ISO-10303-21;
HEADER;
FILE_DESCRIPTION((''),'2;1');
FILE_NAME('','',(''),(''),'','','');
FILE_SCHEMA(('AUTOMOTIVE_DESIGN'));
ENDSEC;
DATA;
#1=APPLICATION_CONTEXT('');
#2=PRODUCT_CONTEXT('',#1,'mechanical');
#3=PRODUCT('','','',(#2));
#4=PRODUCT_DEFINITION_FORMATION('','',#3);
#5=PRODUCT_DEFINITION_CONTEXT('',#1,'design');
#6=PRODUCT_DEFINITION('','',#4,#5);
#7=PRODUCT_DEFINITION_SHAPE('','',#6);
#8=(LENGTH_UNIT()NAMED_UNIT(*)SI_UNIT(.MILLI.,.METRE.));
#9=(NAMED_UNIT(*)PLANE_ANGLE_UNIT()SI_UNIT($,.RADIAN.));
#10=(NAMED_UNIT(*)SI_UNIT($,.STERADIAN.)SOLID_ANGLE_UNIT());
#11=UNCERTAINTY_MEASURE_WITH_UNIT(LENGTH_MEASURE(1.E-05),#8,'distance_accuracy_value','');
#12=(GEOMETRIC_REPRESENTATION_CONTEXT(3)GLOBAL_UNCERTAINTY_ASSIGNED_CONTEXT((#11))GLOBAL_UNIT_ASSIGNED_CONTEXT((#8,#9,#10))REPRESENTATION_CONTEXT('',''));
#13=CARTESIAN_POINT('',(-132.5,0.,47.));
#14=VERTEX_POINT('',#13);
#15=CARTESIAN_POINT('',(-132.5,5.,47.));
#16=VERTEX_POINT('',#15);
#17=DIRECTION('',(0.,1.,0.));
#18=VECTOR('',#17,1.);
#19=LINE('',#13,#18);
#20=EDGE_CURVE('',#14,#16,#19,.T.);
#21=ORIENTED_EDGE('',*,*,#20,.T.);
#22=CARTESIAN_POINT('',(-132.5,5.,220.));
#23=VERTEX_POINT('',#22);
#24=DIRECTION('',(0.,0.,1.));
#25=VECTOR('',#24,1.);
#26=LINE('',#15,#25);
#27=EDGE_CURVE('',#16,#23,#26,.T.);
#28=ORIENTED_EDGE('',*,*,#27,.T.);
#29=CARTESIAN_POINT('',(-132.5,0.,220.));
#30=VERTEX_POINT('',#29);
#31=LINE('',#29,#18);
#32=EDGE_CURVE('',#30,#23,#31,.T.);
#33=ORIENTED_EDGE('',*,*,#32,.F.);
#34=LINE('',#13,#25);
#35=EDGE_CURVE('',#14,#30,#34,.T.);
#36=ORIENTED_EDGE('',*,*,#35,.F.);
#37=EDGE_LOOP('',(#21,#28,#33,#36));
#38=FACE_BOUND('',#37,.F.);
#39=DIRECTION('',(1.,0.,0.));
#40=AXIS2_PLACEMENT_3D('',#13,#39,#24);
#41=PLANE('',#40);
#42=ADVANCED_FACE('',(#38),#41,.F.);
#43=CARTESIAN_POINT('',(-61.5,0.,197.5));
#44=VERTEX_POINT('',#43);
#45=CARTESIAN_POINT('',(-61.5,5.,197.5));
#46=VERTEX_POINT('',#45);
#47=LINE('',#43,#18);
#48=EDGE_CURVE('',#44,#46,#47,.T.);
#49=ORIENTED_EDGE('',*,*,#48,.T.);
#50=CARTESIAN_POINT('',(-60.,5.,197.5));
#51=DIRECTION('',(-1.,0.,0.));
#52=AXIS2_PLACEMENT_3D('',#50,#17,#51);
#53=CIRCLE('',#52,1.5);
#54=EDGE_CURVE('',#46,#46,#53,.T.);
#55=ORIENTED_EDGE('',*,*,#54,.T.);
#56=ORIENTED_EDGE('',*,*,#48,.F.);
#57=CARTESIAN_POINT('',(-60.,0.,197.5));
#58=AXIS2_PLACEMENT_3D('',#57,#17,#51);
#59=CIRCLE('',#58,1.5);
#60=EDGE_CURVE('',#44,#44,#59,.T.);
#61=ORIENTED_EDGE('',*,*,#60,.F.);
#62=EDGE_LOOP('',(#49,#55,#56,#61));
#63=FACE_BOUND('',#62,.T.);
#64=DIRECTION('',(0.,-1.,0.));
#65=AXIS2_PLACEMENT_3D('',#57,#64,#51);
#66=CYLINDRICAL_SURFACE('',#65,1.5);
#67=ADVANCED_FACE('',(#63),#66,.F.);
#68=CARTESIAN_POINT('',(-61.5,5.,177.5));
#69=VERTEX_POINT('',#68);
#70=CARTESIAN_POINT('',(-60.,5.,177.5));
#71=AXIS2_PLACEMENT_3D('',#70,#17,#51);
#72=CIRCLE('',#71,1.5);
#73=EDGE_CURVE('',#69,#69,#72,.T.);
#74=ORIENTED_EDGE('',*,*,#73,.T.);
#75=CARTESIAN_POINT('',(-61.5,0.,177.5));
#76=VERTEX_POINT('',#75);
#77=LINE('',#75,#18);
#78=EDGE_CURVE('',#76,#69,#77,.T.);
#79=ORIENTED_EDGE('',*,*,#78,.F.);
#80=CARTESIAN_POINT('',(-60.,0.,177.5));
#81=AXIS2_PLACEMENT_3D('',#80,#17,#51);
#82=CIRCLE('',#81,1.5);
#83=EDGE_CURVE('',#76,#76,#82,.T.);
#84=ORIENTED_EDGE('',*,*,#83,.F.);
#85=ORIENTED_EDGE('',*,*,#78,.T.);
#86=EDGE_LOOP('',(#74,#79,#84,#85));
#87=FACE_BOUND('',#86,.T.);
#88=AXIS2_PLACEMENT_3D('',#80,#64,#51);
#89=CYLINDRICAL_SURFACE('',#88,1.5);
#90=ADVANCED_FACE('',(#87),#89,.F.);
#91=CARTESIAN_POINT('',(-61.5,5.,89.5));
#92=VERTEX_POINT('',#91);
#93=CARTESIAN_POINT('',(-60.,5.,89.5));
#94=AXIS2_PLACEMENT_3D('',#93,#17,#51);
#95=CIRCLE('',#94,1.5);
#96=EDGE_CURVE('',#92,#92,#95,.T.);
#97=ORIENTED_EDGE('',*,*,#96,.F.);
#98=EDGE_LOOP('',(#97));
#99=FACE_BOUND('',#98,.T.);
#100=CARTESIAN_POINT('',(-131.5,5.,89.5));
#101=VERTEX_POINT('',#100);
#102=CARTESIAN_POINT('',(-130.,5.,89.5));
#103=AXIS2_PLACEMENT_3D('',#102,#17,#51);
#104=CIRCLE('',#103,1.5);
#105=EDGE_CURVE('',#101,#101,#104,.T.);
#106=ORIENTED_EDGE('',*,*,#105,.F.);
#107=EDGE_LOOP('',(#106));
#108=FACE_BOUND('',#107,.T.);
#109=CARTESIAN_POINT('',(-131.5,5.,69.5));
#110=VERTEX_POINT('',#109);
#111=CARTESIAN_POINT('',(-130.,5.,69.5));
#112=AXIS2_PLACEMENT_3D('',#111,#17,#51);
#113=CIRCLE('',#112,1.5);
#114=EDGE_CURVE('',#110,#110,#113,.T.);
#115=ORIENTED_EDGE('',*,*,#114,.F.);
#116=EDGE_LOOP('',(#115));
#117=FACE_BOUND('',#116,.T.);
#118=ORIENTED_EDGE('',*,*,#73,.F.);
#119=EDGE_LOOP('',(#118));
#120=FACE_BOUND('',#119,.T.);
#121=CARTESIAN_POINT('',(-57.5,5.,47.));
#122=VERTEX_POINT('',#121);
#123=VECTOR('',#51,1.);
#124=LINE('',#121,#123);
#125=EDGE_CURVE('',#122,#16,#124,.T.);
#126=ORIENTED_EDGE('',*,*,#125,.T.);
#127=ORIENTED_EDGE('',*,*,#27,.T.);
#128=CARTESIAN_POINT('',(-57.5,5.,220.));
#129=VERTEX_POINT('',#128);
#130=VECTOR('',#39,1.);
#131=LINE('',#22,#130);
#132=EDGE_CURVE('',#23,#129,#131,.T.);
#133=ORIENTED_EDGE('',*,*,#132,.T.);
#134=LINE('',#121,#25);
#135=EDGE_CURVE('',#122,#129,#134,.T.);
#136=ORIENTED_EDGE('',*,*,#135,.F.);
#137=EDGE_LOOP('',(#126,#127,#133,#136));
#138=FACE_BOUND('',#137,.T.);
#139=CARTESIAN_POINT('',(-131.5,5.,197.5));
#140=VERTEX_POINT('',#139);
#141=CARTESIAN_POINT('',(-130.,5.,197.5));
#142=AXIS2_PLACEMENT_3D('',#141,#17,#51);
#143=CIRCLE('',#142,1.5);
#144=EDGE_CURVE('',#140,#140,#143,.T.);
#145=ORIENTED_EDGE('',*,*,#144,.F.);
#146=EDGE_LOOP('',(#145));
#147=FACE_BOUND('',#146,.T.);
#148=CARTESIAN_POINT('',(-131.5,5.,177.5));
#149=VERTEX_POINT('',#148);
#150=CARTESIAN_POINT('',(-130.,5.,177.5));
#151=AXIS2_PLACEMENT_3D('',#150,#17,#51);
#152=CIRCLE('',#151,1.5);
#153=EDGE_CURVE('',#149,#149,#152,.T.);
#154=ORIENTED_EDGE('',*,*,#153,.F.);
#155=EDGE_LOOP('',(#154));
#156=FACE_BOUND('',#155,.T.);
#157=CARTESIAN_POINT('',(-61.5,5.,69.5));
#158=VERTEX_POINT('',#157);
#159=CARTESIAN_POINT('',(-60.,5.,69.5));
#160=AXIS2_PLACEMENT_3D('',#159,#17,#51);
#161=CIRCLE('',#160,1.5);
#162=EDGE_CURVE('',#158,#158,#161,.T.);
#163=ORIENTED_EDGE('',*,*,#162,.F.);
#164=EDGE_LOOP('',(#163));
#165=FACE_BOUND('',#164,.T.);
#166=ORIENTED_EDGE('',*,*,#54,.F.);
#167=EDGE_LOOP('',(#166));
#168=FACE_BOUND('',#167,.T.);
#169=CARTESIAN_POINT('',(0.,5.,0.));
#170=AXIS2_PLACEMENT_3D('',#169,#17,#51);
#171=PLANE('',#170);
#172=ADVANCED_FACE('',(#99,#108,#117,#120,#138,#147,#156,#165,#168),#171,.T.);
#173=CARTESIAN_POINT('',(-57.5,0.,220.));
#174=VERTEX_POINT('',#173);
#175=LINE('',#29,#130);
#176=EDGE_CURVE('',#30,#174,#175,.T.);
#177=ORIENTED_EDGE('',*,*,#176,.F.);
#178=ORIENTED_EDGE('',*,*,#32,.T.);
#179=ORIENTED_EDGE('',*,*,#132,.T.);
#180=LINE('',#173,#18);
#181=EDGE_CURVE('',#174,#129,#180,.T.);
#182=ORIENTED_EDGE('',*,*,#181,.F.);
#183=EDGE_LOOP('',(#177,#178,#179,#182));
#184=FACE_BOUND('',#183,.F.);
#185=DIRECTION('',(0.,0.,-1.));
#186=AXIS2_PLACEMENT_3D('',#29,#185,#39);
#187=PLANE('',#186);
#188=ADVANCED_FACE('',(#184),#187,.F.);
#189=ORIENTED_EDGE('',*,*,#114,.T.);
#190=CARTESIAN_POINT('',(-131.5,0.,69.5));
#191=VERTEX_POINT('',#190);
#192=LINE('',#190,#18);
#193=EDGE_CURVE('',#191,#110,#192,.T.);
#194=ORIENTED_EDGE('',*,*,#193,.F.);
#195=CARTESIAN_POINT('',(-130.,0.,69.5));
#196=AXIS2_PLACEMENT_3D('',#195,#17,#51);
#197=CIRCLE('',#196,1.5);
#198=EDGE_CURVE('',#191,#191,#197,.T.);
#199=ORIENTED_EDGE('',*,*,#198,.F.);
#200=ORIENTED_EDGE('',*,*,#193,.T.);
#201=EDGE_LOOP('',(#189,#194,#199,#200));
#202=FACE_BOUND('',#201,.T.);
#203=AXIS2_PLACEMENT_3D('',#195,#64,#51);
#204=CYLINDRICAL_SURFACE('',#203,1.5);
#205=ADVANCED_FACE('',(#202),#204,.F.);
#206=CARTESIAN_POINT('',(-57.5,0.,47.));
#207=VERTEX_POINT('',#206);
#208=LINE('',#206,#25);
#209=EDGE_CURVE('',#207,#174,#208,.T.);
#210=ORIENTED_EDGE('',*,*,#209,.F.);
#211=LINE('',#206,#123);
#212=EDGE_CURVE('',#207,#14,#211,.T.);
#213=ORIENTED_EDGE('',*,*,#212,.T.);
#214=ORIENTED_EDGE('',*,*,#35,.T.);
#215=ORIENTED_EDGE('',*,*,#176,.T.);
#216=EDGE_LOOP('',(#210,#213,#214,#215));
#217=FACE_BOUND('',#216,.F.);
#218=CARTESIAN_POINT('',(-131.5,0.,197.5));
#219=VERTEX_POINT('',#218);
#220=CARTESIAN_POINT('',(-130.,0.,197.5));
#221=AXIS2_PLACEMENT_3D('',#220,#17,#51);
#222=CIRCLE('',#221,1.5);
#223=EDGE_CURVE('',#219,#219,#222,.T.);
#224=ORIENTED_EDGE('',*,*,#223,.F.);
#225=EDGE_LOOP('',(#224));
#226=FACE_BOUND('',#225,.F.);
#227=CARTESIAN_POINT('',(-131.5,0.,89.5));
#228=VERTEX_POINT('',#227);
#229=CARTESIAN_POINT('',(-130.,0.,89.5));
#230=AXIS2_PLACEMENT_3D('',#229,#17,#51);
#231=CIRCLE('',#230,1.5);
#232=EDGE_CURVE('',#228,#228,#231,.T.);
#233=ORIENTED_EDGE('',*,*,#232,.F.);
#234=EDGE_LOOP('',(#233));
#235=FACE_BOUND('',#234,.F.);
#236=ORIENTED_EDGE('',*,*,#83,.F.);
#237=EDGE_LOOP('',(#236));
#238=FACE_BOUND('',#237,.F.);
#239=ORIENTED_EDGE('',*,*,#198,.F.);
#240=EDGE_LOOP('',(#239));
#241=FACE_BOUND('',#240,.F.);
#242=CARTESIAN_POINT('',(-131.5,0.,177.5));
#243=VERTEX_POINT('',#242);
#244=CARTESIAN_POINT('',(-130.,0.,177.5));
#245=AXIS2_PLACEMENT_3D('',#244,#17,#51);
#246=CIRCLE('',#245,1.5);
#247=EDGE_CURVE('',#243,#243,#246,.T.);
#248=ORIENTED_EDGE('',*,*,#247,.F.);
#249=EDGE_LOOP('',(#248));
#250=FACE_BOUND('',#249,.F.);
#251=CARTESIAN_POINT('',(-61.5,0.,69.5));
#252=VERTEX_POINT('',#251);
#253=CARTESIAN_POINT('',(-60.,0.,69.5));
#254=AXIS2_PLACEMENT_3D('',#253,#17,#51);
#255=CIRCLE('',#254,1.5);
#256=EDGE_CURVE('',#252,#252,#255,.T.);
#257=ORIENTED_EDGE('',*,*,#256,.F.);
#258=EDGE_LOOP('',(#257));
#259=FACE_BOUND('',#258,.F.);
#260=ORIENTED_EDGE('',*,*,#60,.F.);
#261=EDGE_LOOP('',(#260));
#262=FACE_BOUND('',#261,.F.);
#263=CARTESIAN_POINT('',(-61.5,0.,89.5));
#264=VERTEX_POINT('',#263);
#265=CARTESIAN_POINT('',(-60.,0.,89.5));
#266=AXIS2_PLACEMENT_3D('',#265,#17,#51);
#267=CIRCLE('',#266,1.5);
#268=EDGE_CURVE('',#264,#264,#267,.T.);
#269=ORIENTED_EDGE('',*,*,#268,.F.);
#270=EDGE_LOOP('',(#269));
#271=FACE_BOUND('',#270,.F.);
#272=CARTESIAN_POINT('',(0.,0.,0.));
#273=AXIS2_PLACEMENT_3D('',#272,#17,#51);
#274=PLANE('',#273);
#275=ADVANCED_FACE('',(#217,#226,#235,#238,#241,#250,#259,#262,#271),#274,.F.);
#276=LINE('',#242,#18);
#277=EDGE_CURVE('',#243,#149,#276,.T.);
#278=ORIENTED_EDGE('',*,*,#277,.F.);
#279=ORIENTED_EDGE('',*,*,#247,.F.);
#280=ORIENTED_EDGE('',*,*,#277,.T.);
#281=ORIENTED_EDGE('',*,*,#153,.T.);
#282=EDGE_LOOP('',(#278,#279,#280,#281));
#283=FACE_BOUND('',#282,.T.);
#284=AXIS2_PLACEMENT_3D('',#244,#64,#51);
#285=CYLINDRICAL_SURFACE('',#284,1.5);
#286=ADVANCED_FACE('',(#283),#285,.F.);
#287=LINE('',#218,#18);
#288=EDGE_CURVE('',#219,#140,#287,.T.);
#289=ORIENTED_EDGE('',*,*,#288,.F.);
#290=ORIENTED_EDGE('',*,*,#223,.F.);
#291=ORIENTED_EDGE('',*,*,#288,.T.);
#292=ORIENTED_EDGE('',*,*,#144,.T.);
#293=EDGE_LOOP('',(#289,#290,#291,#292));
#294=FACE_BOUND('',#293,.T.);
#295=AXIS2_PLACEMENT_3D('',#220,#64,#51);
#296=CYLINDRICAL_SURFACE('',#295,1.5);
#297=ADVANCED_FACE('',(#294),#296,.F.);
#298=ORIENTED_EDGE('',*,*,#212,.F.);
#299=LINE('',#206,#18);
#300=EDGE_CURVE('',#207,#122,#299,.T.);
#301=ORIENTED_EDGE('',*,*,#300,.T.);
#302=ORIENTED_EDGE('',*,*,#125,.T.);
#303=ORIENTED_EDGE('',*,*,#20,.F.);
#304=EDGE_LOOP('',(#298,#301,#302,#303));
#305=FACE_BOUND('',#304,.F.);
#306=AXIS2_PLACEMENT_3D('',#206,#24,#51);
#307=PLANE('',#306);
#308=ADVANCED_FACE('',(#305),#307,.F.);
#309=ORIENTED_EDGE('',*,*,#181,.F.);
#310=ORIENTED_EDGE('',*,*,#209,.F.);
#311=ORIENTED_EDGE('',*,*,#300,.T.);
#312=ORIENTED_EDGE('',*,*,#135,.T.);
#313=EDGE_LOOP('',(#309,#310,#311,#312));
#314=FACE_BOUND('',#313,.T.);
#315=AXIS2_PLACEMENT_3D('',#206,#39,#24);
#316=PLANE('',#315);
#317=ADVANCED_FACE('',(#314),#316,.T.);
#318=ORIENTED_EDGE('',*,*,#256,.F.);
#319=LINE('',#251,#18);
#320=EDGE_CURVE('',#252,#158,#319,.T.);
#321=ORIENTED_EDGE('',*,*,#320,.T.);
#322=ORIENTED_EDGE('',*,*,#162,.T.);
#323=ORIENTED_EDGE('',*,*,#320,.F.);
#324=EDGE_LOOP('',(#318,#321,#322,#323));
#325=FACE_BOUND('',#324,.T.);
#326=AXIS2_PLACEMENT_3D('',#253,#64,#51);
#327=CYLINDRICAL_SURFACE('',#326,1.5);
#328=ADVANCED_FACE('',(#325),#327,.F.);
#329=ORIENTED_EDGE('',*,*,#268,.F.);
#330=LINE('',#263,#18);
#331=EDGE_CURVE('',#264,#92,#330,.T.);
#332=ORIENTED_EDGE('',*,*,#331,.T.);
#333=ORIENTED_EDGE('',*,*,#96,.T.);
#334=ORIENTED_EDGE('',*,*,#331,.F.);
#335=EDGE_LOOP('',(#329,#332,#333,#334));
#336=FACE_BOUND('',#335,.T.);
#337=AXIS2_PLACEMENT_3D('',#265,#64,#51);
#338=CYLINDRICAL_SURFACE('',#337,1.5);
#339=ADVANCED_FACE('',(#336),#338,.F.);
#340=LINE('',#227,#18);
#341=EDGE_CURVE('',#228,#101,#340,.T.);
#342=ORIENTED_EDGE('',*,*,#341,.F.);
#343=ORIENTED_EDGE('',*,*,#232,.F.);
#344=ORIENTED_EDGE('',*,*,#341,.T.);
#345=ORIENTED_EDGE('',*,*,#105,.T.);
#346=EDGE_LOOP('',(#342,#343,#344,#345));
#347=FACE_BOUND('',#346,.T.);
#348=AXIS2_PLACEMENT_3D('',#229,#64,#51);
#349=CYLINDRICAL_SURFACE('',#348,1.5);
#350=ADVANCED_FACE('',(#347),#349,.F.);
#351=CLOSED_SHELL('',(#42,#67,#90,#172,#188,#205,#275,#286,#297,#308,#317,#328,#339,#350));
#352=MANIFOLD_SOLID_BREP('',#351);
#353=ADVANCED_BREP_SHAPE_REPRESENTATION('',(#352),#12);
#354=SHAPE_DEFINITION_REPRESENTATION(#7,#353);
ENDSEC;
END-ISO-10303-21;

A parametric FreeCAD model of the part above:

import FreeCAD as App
import Part
import Sketcher

V = App.Vector
Q = App.Units.Quantity


def add_polygon(sketch, points):
    """Adds a closed chain of lines whose ends are joined by coincident constraints."""
    first, n = sketch.GeometryCount, len(points)
    for a, b in zip(points, points[1:] + points[:1]):
        sketch.addGeometry(Part.LineSegment(App.Vector(*a, 0), App.Vector(*b, 0)), False)
    for i in range(n):
        sketch.addConstraint(Sketcher.Constraint("Coincident", first + i, 2, first + (i + 1) % n, 1))

doc = App.newDocument("Part")
body = doc.addObject("PartDesign::Body", "Body")

sketch1 = body.newObject("Sketcher::SketchObject", "Sketch")
sketch1.AttachmentSupport = (doc.getObject("XZ_Plane"), [""])
sketch1.MapMode = "FlatFace"
add_polygon(sketch1, [(-57.5, 220), (-57.5, 47), (-132.5, 47), (-132.5, 220)])
sketch1.addGeometry(Part.Circle(V(-60, 69.5, 0), V(0, 0, 1), 1.5), False)
sketch1.addGeometry(Part.Circle(V(-60, 89.5, 0), V(0, 0, 1), 1.5), False)
sketch1.addGeometry(Part.Circle(V(-130, 69.5, 0), V(0, 0, 1), 1.5), False)
sketch1.addGeometry(Part.Circle(V(-130, 89.5, 0), V(0, 0, 1), 1.5), False)
sketch1.addGeometry(Part.Circle(V(-60, 177.5, 0), V(0, 0, 1), 1.5), False)
sketch1.addGeometry(Part.Circle(V(-60, 197.5, 0), V(0, 0, 1), 1.5), False)
sketch1.addGeometry(Part.Circle(V(-130, 177.5, 0), V(0, 0, 1), 1.5), False)
sketch1.addGeometry(Part.Circle(V(-130, 197.5, 0), V(0, 0, 1), 1.5), False)
sketch1.addConstraint([
    Sketcher.Constraint("Vertical", 0),
    Sketcher.Constraint("Horizontal", 1),
    Sketcher.Constraint("Vertical", 2),
    Sketcher.Constraint("Horizontal", 3),
    Sketcher.Constraint("Equal", 4, 5),
    Sketcher.Constraint("Equal", 5, 6),
    Sketcher.Constraint("Equal", 6, 7),
    Sketcher.Constraint("Equal", 7, 8),
    Sketcher.Constraint("Equal", 8, 9),
    Sketcher.Constraint("Equal", 9, 10),
    Sketcher.Constraint("Equal", 10, 11),
    Sketcher.Constraint("Horizontal", 4, 3, 6, 3),
    Sketcher.Constraint("Horizontal", 5, 3, 7, 3),
    Sketcher.Constraint("Horizontal", 8, 3, 10, 3),
    Sketcher.Constraint("Horizontal", 9, 3, 11, 3),
    Sketcher.Constraint("Vertical", 4, 3, 5, 3),
    Sketcher.Constraint("Vertical", 6, 3, 7, 3),
    Sketcher.Constraint("Vertical", 5, 3, 8, 3),
    Sketcher.Constraint("Vertical", 8, 3, 9, 3),
    Sketcher.Constraint("Vertical", 7, 3, 10, 3),
    Sketcher.Constraint("Vertical", 10, 3, 11, 3),
    Sketcher.Constraint("Diameter", 4, Q("3 mm")),
    Sketcher.Constraint("DistanceX", 1, 2, 1, 1, Q("75 mm")),
    Sketcher.Constraint("DistanceY", 0, 2, 0, 1, Q("173 mm")),
    Sketcher.Constraint("DistanceX", 4, 3, -1, 1, Q("60 mm")),
    Sketcher.Constraint("DistanceX", 6, 3, -1, 1, Q("130 mm")),
    Sketcher.Constraint("DistanceY", -1, 1, 0, 2, Q("47 mm")),
    Sketcher.Constraint("DistanceY", 4, 3, 5, 3, Q("20 mm")),
    Sketcher.Constraint("DistanceY", 5, 3, 8, 3, Q("88 mm")),
    Sketcher.Constraint("DistanceY", 8, 3, 9, 3, Q("20 mm")),
    Sketcher.Constraint("DistanceY", -1, 1, 4, 3, Q("69.5 mm")),
    Sketcher.Constraint("DistanceX", 0, 2, -1, 1, Q("57.5 mm")),
])
pad1 = body.newObject("PartDesign::Pad", "Pad")
pad1.Profile = sketch1
pad1.Length = 5
pad1.Reversed = True

doc.recompute()
